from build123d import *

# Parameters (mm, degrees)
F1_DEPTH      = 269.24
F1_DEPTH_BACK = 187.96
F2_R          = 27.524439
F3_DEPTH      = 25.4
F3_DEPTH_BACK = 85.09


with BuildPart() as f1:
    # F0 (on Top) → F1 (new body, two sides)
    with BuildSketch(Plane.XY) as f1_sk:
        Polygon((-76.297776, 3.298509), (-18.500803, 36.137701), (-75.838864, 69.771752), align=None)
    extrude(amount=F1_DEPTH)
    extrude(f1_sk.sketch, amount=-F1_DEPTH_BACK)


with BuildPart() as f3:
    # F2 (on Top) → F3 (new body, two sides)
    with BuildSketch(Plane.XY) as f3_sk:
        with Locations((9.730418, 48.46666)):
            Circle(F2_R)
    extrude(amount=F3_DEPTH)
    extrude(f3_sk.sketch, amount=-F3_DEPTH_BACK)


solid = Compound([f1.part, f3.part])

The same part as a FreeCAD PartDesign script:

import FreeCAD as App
import Part
import Sketcher
Q = App.Units.Quantity

doc = App.newDocument("Part")
body = doc.addObject("PartDesign::Body", "Body")

sketch1 = doc.addObject("Sketcher::SketchObject", "Sketch")
body.addObject(sketch1)
sketch1.AttachmentSupport = (doc.XY_Plane, [""])
sketch1.MapMode = "FlatFace"
sketch1.addGeometry([
    Part.LineSegment(App.Vector(-76.297776, 3.298509, 0), App.Vector(-18.500803, 36.137701, 0)),
    Part.LineSegment(App.Vector(-18.500803, 36.137701, 0), App.Vector(-75.838864, 69.771752, 0)),
    Part.LineSegment(App.Vector(-75.838864, 69.771752, 0), App.Vector(-76.297776, 3.298509, 0)),
], False)
sketch1.addConstraint([
    Sketcher.Constraint("Coincident", 0, 2, 1, 1),
    Sketcher.Constraint("Coincident", 1, 2, 2, 1),
    Sketcher.Constraint("Coincident", 2, 2, 0, 1),
    Sketcher.Constraint("Equal", 0, 1),
    Sketcher.Constraint("Equal", 1, 2),
    Sketcher.Constraint("DistanceY", -1, 1, 0, 2, 36.137701),
    Sketcher.Constraint("DistanceY", -1, 1, 2, 2, 3.298509),
    Sketcher.Constraint("DistanceX", 1, 2, 0, 2, 57.338061),
    Sketcher.Constraint("DistanceX", 0, 2, -1, 1, 18.500803),
])
pad1 = doc.addObject("PartDesign::Pad", "Pad")
body.addObject(pad1)
pad1.Profile = sketch1
pad1.Type = "TwoLengths"
pad1.Length = Q("10.6 in")
pad1.Length2 = Q("7.4 in")
body2 = doc.addObject("PartDesign::Body", "Body001")

sketch2 = doc.addObject("Sketcher::SketchObject", "Sketch001")
body2.addObject(sketch2)
sketch2.AttachmentSupport = (doc.getObject("XY_Plane001"), [""])
sketch2.MapMode = "FlatFace"
sketch2.addGeometry(Part.Circle(App.Vector(9.730418, 48.46666, 0), App.Vector(0, 0, 1), 27.524439), False)
sketch2.addConstraint([
    Sketcher.Constraint("Diameter", 0, 55.048878),
    Sketcher.Constraint("DistanceY", -1, 1, 0, 3, 48.46666),
    Sketcher.Constraint("DistanceX", -1, 1, 0, 3, 9.730418),
])
pad2 = doc.addObject("PartDesign::Pad", "Pad001")
body2.addObject(pad2)
pad2.Profile = sketch2
pad2.Type = "TwoLengths"
pad2.Length = Q("1 in")
pad2.Length2 = Q("3.35 in")

doc.recompute()
